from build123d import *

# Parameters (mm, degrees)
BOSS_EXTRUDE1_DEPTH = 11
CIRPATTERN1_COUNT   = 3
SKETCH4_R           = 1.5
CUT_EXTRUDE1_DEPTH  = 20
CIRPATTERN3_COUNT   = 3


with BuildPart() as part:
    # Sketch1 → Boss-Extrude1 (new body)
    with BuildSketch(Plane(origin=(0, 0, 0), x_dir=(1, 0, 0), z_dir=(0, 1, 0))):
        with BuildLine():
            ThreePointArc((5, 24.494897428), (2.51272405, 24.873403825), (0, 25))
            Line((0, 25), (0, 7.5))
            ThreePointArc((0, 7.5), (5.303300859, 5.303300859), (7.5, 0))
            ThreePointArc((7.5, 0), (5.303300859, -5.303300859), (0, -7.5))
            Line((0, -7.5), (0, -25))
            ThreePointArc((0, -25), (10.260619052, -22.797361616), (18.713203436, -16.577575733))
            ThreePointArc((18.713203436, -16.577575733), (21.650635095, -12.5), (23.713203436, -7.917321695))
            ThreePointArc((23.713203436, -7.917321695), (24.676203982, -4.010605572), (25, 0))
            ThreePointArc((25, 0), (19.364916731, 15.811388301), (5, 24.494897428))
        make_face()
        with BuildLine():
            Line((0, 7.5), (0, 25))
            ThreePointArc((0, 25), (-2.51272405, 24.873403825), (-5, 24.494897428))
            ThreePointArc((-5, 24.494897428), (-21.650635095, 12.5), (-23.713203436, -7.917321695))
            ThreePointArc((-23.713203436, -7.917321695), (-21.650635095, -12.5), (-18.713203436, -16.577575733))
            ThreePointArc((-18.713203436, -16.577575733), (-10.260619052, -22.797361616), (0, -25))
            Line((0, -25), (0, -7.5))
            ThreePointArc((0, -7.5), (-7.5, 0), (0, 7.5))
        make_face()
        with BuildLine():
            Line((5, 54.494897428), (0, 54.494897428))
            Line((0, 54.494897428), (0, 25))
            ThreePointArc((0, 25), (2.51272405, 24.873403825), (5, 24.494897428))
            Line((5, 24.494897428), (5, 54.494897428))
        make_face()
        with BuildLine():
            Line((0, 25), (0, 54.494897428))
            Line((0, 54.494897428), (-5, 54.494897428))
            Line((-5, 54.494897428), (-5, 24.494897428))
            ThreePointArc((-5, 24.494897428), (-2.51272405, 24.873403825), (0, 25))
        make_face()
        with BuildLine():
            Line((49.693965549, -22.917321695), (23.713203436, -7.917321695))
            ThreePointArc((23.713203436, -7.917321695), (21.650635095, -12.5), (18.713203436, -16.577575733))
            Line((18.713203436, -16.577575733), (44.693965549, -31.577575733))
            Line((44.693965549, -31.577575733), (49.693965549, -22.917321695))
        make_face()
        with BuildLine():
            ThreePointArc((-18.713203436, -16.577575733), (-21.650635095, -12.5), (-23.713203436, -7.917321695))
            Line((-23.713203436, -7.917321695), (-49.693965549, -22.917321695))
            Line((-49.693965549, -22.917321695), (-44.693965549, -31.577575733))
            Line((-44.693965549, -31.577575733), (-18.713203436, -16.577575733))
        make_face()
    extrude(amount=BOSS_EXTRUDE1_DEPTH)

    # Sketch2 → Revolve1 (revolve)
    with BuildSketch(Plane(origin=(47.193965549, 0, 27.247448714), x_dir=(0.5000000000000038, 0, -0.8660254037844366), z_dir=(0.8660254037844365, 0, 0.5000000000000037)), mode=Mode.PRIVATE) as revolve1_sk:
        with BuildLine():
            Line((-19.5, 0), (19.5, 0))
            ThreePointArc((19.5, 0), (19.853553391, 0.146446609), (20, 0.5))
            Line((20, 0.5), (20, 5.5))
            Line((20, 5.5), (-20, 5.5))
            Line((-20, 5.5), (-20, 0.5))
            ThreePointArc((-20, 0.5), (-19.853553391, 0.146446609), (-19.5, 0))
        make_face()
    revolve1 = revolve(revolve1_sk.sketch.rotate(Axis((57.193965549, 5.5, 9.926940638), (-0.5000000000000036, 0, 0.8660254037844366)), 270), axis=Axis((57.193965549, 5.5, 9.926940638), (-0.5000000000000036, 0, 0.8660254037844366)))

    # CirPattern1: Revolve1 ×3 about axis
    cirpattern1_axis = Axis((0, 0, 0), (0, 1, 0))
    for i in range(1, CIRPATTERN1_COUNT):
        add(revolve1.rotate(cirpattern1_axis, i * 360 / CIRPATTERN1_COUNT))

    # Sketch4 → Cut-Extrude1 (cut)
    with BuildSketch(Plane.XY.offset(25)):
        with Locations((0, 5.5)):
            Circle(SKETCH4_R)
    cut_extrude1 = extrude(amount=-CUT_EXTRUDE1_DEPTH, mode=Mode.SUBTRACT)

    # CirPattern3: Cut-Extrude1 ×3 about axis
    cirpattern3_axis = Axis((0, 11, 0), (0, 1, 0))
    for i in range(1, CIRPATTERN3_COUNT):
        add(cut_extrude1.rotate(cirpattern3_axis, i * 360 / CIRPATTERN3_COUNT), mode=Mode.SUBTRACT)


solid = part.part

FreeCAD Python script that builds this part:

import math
import FreeCAD as App
import Part
import Sketcher
from FreeCAD import Vector
Q = App.Units.Quantity

doc = App.newDocument("Part")
body = doc.addObject("PartDesign::Body", "Body")

# Sketch on XZ plane
sketch1 = doc.addObject("Sketcher::SketchObject", "Sketch")
body.addObject(sketch1)
sketch1.AttachmentSupport = (doc.XZ_Plane, [""])
sketch1.MapMode = "FlatFace"
sketch1.addGeometry([
    Part.ArcOfCircle(Part.Circle(Vector(0, 0, 0), Vector(0, 0, 1), 25), math.radians(0), math.radians(18.46)),  # 0
    Part.ArcOfCircle(Part.Circle(Vector(0, 0, 0), Vector(0, 0, 1), 25), math.radians(-78), math.radians(0)),  # 1
    Part.LineSegment(Vector(5, -24, 0), Vector(5, -54, 0)),  # 2
    Part.LineSegment(Vector(5, -54, 0), Vector(-5, -54, 0)),  # 3
    Part.LineSegment(Vector(-5, -54, 0), Vector(-5, -24, 0)),  # 4
    Part.ArcOfCircle(Part.Circle(Vector(0, 0, 0), Vector(0, 0, 1), 25), math.radians(162), math.radians(258)),  # 5
    Part.LineSegment(Vector(-24, 8, 0), Vector(-50, 23, 0)),  # 6
    Part.LineSegment(Vector(-50, 23, 0), Vector(-45, 32, 0)),  # 7
    Part.LineSegment(Vector(-45, 32, 0), Vector(-19, 17, 0)),  # 8
    Part.ArcOfCircle(Part.Circle(Vector(0, 0, 0), Vector(0, 0, 1), 25), math.radians(90), math.radians(138)),  # 9
    Part.ArcOfCircle(Part.Circle(Vector(0, 0, 0), Vector(0, 0, 1), 25), math.radians(42), math.radians(90)),  # 10
    Part.LineSegment(Vector(19, 17, 0), Vector(45, 32, 0)),  # 11
    Part.LineSegment(Vector(45, 32, 0), Vector(50, 23, 0)),  # 12
    Part.LineSegment(Vector(50, 23, 0), Vector(24, 8, 0)),  # 13
    Part.ArcOfCircle(Part.Circle(Vector(0, 0, 0), Vector(0, 0, 1), 8), math.radians(0), math.radians(90)),  # 14
    Part.ArcOfCircle(Part.Circle(Vector(0, 0, 0), Vector(0, 0, 1), 8), math.radians(90), math.radians(270)),  # 15
    Part.ArcOfCircle(Part.Circle(Vector(0, 0, 0), Vector(0, 0, 1), 8), math.radians(-90), math.radians(0)),  # 16
], False)
sketch1.addConstraint([
    Sketcher.Constraint("Tangent", 0, 1, 1, 2),
    Sketcher.Constraint("Coincident", 1, 1, 2, 1),
    Sketcher.Constraint("Coincident", 2, 2, 3, 1),
    Sketcher.Constraint("Coincident", 3, 2, 4, 1),
    Sketcher.Constraint("Coincident", 4, 2, 5, 2),
    Sketcher.Constraint("Coincident", 5, 1, 6, 1),
    Sketcher.Constraint("Coincident", 6, 2, 7, 1),
    Sketcher.Constraint("Coincident", 7, 2, 8, 1),
    Sketcher.Constraint("Coincident", 8, 2, 9, 2),
    Sketcher.Constraint("Tangent", 9, 1, 10, 2),
    Sketcher.Constraint("Coincident", 10, 1, 11, 1),
    Sketcher.Constraint("Coincident", 11, 2, 12, 1),
    Sketcher.Constraint("Coincident", 12, 2, 13, 1),
    Sketcher.Constraint("Coincident", 13, 2, 0, 2),
    Sketcher.Constraint("Tangent", 14, 2, 15, 1),
    Sketcher.Constraint("Tangent", 15, 2, 16, 1),
    Sketcher.Constraint("Tangent", 16, 2, 14, 1),
    Sketcher.Constraint("Vertical", 2),
    Sketcher.Constraint("Horizontal", 3),
    Sketcher.Constraint("Vertical", 4),
    Sketcher.Constraint("Coincident", 0, 3, -1, 1),
    Sketcher.Constraint("Coincident", 5, 3, -1, 1),
    Sketcher.Constraint("Coincident", 9, 3, -1, 1),
    Sketcher.Constraint("Coincident", 14, 3, -1, 1),
    Sketcher.Constraint("Equal", 0, 1),
    Sketcher.Constraint("Equal", 1, 5),
    Sketcher.Constraint("Equal", 5, 9),
    Sketcher.Constraint("Equal", 9, 10),
    Sketcher.Constraint("Symmetric", 7, 2, 11, 2, -2),
    Sketcher.Constraint("Symmetric", 6, 2, 12, 2, -2),
    Sketcher.Constraint("PointOnObject", 0, 1, -1),
    Sketcher.Constraint("PointOnObject", 9, 1, -2),
    Sketcher.Constraint("PointOnObject", 14, 2, -2),
    Sketcher.Constraint("PointOnObject", 15, 2, -2),
    Sketcher.Constraint("PointOnObject", 16, 2, -1),
    Sketcher.Constraint("Perpendicular", 6, 7),
    Sketcher.Constraint("Perpendicular", 7, 8),
    Sketcher.Constraint("Perpendicular", 11, 12),
    Sketcher.Constraint("Perpendicular", 12, 13),
    Sketcher.Constraint("Horizontal", 1, 1, 4, 2),
    Sketcher.Constraint("Equal", 6, 8),
    Sketcher.Constraint("Radius", 0, 25.0),
    Sketcher.Constraint("Radius", 14, 7.5),
    Sketcher.Constraint("DistanceX", 3, 2, 3, 1, 10.0),
    Sketcher.Constraint("DistanceY", 2, 2, 2, 1, 30.0),
    Sketcher.Constraint("Angle", 6, Q("150 deg")),
    Sketcher.Constraint("Distance", 6, 30.0),
    Sketcher.Constraint("Distance", 7, 10.0),
])
pad1 = doc.addObject("PartDesign::Pad", "Pad")
body.addObject(pad1)
pad1.Profile = sketch1
pad1.Length = 11
pad1.Reversed = True

# Sketch on an angled plane
sketch2 = doc.addObject("Sketcher::SketchObject", "Sketch001")
body.addObject(sketch2)
sketch2.Placement = App.Placement(Vector(47.193966, 0, 27.247449), App.Rotation(Vector(0.5, 0, -0.866025404), Vector(0, 1, 0), Vector(0.866025404, 0, 0.5), "ZXY"))
sketch2.addGeometry([
    Part.LineSegment(Vector(-19.5, 0, 0), Vector(19.5, 0, 0)),  # 0
    Part.ArcOfCircle(Part.Circle(Vector(19.5, 0.5, 0), Vector(0, 0, 1), 0.5), math.radians(-90), math.radians(0)),  # 1
    Part.LineSegment(Vector(20, 0.5, 0), Vector(20, 5.5, 0)),  # 2
    Part.LineSegment(Vector(20, 5.5, 0), Vector(-20, 5.5, 0)),  # 3
    Part.LineSegment(Vector(-20, 5.5, 0), Vector(-20, 0.5, 0)),  # 4
    Part.ArcOfCircle(Part.Circle(Vector(-19.5, 0.5, 0), Vector(0, 0, 1), 0.5), math.radians(180), math.radians(270)),  # 5
], False)
sketch2.addGeometry(Part.LineSegment(Vector(20, 5.5, 0), Vector(-20, 5.5, 0)), True)  # axis
sketch2.addConstraint([
    Sketcher.Constraint("Tangent", 0, 2, 1, 1),
    Sketcher.Constraint("Tangent", 1, 2, 2, 1),
    Sketcher.Constraint("Coincident", 2, 2, 3, 1),
    Sketcher.Constraint("Coincident", 3, 2, 4, 1),
    Sketcher.Constraint("Tangent", 4, 2, 5, 1),
    Sketcher.Constraint("Tangent", 5, 2, 0, 1),
    Sketcher.Constraint("Horizontal", 0),
    Sketcher.Constraint("Vertical", 2),
    Sketcher.Constraint("Horizontal", 3),
    Sketcher.Constraint("Vertical", 4),
    Sketcher.Constraint("Horizontal", 6),
    Sketcher.Constraint("Coincident", 6, 1, 2, 2),
    Sketcher.Constraint("Equal", 1, 5),
    Sketcher.Constraint("Symmetric", 0, 2, 5, 2, -1, 1),
    Sketcher.Constraint("Vertical", 4, 2, 6, 2),
    Sketcher.Constraint("Radius", 1, 0.5),
    Sketcher.Constraint("DistanceX", 0, 1, 0, 2, 39.0),
    Sketcher.Constraint("DistanceY", 2, 1, 2, 2, 5.0),
])
revolution = doc.addObject("PartDesign::Revolution", "Revolution")
body.addObject(revolution)
revolution.Profile = sketch2
revolution.ReferenceAxis = (sketch2, ["Axis0"])
revolution.Angle = 360
doc.recompute()

polarpattern = doc.addObject("PartDesign::PolarPattern", "PolarPattern")
body.addObject(polarpattern)
polarpattern.Originals = [revolution]
polarpattern.Axis = (doc.Y_Axis, [""])
polarpattern.Angle = 360
polarpattern.Occurrences = 3
body.Tip = polarpattern

# Sketch on XY plane
sketch3 = doc.addObject("Sketcher::SketchObject", "Sketch002")
body.addObject(sketch3)
sketch3.AttachmentSupport = (doc.XY_Plane, [""])
sketch3.MapMode = "FlatFace"
sketch3.AttachmentOffset = App.Placement(Vector(0, 0, 25), App.Rotation())
sketch3.addGeometry(Part.Circle(Vector(0, 5.5, 0), Vector(0, 0, 1), 1.5), False)
sketch3.addConstraint([
    Sketcher.Constraint("PointOnObject", 0, 3, -2),
    Sketcher.Constraint("Diameter", 0, 3.0),
    Sketcher.Constraint("DistanceY", -1, 1, 0, 3, 5.5),
])
pocket1 = doc.addObject("PartDesign::Pocket", "Pocket")
body.addObject(pocket1)
pocket1.Profile = sketch3
pocket1.Length = 20
doc.recompute()

polarpattern2 = doc.addObject("PartDesign::PolarPattern", "PolarPattern001")
body.addObject(polarpattern2)
polarpattern2.Originals = [pocket1]
polarpattern2.Axis = (doc.Y_Axis, [""])
polarpattern2.Angle = 360
polarpattern2.Occurrences = 3
body.Tip = polarpattern2

doc.recompute()
